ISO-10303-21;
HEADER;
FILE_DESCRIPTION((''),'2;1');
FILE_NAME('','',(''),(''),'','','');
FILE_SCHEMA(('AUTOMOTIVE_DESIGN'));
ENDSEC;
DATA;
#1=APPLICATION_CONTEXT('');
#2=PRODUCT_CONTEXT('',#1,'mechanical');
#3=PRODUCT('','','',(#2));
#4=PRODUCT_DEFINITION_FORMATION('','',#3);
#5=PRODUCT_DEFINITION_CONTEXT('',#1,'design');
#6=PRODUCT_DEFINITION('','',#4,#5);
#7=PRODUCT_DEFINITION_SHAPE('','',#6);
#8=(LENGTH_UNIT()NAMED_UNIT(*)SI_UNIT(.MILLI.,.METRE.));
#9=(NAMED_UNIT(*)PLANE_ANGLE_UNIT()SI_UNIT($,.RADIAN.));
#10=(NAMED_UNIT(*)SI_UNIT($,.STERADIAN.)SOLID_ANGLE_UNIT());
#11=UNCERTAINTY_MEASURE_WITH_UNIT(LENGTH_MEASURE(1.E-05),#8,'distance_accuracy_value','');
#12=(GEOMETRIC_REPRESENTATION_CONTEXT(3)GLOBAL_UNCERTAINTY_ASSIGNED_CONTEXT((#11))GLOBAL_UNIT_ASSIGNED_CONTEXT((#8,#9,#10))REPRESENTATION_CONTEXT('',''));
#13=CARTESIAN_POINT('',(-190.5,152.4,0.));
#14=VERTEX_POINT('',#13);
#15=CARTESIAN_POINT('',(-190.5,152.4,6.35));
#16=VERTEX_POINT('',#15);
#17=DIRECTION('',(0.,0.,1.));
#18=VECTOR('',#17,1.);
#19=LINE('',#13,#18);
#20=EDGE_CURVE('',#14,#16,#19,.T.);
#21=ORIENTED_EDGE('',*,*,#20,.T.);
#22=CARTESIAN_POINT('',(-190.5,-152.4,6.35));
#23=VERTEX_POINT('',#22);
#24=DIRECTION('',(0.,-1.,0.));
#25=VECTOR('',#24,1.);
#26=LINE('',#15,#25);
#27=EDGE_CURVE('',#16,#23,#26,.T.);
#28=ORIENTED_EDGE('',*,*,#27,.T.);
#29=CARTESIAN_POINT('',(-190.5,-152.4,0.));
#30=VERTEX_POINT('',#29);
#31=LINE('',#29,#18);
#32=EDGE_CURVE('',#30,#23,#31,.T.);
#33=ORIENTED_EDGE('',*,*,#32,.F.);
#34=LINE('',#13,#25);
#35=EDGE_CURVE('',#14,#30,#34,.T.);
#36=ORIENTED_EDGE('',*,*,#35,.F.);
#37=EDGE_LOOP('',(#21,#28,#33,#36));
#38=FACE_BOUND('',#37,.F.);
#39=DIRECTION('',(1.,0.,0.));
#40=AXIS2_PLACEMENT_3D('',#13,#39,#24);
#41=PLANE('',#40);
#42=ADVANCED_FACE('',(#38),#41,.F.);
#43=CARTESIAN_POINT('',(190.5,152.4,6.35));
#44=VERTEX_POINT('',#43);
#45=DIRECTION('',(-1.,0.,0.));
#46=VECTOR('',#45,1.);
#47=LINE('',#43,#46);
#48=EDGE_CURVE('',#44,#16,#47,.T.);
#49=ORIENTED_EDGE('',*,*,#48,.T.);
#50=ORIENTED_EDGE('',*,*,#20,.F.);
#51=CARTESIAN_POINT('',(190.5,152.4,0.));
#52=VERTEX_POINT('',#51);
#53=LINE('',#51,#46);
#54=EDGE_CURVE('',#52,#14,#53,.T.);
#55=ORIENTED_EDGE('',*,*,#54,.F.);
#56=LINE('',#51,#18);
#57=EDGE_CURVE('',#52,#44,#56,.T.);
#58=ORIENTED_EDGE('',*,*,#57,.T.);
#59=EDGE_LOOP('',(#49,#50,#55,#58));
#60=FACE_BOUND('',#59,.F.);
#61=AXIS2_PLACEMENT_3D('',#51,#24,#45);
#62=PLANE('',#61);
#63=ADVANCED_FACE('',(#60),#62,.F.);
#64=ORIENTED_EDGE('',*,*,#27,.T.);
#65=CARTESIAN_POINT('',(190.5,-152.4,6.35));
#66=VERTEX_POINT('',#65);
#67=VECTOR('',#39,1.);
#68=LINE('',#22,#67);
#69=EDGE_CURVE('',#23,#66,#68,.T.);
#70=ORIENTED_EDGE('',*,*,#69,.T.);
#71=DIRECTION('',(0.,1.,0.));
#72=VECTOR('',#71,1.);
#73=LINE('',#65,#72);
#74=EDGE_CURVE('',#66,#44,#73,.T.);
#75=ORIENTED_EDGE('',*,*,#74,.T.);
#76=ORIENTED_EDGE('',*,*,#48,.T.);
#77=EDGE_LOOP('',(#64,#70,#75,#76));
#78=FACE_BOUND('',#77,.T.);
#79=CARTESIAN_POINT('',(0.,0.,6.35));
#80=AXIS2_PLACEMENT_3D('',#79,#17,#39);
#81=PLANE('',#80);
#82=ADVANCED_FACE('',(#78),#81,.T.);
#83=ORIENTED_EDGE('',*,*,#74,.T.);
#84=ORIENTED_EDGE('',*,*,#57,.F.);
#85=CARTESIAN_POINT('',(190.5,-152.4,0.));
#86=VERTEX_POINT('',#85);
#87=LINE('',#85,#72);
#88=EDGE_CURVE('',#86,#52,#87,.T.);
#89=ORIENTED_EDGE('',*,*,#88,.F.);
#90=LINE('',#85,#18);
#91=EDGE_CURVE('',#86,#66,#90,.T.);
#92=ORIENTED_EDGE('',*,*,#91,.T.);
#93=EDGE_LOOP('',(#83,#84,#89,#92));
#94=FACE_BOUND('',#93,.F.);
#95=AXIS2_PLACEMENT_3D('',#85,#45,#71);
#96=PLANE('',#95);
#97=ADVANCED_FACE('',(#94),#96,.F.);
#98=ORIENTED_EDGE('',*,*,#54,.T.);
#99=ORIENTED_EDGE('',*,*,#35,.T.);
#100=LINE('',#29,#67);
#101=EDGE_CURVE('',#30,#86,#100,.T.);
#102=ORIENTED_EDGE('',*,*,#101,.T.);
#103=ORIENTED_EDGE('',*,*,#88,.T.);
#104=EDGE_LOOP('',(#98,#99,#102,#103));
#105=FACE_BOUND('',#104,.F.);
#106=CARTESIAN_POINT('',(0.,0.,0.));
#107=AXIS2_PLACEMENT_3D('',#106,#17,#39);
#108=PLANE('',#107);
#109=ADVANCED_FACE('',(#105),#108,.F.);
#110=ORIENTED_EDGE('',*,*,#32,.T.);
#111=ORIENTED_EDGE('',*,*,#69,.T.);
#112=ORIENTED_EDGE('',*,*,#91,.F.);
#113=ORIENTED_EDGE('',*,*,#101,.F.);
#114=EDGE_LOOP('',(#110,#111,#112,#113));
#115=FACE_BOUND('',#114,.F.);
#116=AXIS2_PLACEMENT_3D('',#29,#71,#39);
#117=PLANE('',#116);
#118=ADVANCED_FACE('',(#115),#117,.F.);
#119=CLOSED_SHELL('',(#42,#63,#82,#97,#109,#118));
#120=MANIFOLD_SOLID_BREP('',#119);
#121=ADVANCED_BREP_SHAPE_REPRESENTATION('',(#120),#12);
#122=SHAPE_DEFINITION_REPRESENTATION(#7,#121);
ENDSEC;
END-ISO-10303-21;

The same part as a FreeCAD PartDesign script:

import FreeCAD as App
import Part
import Sketcher
from FreeCAD import Vector
Q = App.Units.Quantity


def add_polygon(sketch, points):
    """Adds a closed chain of lines whose ends are joined by coincident constraints."""
    first, n = sketch.GeometryCount, len(points)
    for a, b in zip(points, points[1:] + points[:1]):
        sketch.addGeometry(Part.LineSegment(App.Vector(*a, 0), App.Vector(*b, 0)), False)
    for i in range(n):
        sketch.addConstraint(Sketcher.Constraint("Coincident", first + i, 2, first + (i + 1) % n, 1))

doc = App.newDocument("Part")
body = doc.addObject("PartDesign::Body", "Body")

# Sketch on XY plane
sketch1 = body.newObject("Sketcher::SketchObject", "Sketch")
sketch1.AttachmentSupport = (doc.getObject("XY_Plane"), [""])
sketch1.MapMode = "FlatFace"
add_polygon(sketch1, [(-190, 152), (-190, -152), (190, -152), (190, 152)])  # lines 0-3
sketch1.addConstraint([
    Sketcher.Constraint("Vertical", 0),
    Sketcher.Constraint("Horizontal", 1),
    Sketcher.Constraint("Vertical", 2),
    Sketcher.Constraint("Horizontal", 3),
    Sketcher.Constraint("Symmetric", 0, 2, 2, 2, -1, 1),
    Sketcher.Constraint("DistanceX", 1, 1, 1, 2, Q("15 in")),
    Sketcher.Constraint("DistanceY", 0, 2, 0, 1, Q("12 in")),
])
pad1 = body.newObject("PartDesign::Pad", "Pad")
pad1.Profile = sketch1
pad1.Length = Q("0.25 in")

doc.recompute()
